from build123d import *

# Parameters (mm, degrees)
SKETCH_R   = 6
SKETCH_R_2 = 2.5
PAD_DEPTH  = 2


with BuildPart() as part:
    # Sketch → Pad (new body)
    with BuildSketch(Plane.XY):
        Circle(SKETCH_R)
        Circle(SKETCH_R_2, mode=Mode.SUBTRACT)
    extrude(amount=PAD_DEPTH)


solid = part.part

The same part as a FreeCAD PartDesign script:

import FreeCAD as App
import Part
import Sketcher

V = App.Vector
Q = App.Units.Quantity

doc = App.newDocument("Part")
body = doc.addObject("PartDesign::Body", "Body")

# Sketch on XY plane
sketch1 = doc.addObject("Sketcher::SketchObject", "Sketch")
body.addObject(sketch1)
sketch1.AttachmentSupport = (doc.XY_Plane, [""])
sketch1.MapMode = "FlatFace"
sketch1.addGeometry([
    Part.Circle(V(0, 0, 0), V(0, 0, 1), 6),
    Part.Circle(V(0, 0, 0), V(0, 0, 1), 2.5),
], False)
sketch1.addConstraint([
    Sketcher.Constraint("Coincident", 0, 3, -1, 1),
    Sketcher.Constraint("Coincident", 1, 3, -1, 1),
    Sketcher.Constraint("Diameter", 0, Q("12 mm")),
    Sketcher.Constraint("Diameter", 1, Q("5 mm")),
])
pad1 = doc.addObject("PartDesign::Pad", "Pad")
body.addObject(pad1)
pad1.Profile = sketch1
pad1.Length = 2

doc.recompute()
